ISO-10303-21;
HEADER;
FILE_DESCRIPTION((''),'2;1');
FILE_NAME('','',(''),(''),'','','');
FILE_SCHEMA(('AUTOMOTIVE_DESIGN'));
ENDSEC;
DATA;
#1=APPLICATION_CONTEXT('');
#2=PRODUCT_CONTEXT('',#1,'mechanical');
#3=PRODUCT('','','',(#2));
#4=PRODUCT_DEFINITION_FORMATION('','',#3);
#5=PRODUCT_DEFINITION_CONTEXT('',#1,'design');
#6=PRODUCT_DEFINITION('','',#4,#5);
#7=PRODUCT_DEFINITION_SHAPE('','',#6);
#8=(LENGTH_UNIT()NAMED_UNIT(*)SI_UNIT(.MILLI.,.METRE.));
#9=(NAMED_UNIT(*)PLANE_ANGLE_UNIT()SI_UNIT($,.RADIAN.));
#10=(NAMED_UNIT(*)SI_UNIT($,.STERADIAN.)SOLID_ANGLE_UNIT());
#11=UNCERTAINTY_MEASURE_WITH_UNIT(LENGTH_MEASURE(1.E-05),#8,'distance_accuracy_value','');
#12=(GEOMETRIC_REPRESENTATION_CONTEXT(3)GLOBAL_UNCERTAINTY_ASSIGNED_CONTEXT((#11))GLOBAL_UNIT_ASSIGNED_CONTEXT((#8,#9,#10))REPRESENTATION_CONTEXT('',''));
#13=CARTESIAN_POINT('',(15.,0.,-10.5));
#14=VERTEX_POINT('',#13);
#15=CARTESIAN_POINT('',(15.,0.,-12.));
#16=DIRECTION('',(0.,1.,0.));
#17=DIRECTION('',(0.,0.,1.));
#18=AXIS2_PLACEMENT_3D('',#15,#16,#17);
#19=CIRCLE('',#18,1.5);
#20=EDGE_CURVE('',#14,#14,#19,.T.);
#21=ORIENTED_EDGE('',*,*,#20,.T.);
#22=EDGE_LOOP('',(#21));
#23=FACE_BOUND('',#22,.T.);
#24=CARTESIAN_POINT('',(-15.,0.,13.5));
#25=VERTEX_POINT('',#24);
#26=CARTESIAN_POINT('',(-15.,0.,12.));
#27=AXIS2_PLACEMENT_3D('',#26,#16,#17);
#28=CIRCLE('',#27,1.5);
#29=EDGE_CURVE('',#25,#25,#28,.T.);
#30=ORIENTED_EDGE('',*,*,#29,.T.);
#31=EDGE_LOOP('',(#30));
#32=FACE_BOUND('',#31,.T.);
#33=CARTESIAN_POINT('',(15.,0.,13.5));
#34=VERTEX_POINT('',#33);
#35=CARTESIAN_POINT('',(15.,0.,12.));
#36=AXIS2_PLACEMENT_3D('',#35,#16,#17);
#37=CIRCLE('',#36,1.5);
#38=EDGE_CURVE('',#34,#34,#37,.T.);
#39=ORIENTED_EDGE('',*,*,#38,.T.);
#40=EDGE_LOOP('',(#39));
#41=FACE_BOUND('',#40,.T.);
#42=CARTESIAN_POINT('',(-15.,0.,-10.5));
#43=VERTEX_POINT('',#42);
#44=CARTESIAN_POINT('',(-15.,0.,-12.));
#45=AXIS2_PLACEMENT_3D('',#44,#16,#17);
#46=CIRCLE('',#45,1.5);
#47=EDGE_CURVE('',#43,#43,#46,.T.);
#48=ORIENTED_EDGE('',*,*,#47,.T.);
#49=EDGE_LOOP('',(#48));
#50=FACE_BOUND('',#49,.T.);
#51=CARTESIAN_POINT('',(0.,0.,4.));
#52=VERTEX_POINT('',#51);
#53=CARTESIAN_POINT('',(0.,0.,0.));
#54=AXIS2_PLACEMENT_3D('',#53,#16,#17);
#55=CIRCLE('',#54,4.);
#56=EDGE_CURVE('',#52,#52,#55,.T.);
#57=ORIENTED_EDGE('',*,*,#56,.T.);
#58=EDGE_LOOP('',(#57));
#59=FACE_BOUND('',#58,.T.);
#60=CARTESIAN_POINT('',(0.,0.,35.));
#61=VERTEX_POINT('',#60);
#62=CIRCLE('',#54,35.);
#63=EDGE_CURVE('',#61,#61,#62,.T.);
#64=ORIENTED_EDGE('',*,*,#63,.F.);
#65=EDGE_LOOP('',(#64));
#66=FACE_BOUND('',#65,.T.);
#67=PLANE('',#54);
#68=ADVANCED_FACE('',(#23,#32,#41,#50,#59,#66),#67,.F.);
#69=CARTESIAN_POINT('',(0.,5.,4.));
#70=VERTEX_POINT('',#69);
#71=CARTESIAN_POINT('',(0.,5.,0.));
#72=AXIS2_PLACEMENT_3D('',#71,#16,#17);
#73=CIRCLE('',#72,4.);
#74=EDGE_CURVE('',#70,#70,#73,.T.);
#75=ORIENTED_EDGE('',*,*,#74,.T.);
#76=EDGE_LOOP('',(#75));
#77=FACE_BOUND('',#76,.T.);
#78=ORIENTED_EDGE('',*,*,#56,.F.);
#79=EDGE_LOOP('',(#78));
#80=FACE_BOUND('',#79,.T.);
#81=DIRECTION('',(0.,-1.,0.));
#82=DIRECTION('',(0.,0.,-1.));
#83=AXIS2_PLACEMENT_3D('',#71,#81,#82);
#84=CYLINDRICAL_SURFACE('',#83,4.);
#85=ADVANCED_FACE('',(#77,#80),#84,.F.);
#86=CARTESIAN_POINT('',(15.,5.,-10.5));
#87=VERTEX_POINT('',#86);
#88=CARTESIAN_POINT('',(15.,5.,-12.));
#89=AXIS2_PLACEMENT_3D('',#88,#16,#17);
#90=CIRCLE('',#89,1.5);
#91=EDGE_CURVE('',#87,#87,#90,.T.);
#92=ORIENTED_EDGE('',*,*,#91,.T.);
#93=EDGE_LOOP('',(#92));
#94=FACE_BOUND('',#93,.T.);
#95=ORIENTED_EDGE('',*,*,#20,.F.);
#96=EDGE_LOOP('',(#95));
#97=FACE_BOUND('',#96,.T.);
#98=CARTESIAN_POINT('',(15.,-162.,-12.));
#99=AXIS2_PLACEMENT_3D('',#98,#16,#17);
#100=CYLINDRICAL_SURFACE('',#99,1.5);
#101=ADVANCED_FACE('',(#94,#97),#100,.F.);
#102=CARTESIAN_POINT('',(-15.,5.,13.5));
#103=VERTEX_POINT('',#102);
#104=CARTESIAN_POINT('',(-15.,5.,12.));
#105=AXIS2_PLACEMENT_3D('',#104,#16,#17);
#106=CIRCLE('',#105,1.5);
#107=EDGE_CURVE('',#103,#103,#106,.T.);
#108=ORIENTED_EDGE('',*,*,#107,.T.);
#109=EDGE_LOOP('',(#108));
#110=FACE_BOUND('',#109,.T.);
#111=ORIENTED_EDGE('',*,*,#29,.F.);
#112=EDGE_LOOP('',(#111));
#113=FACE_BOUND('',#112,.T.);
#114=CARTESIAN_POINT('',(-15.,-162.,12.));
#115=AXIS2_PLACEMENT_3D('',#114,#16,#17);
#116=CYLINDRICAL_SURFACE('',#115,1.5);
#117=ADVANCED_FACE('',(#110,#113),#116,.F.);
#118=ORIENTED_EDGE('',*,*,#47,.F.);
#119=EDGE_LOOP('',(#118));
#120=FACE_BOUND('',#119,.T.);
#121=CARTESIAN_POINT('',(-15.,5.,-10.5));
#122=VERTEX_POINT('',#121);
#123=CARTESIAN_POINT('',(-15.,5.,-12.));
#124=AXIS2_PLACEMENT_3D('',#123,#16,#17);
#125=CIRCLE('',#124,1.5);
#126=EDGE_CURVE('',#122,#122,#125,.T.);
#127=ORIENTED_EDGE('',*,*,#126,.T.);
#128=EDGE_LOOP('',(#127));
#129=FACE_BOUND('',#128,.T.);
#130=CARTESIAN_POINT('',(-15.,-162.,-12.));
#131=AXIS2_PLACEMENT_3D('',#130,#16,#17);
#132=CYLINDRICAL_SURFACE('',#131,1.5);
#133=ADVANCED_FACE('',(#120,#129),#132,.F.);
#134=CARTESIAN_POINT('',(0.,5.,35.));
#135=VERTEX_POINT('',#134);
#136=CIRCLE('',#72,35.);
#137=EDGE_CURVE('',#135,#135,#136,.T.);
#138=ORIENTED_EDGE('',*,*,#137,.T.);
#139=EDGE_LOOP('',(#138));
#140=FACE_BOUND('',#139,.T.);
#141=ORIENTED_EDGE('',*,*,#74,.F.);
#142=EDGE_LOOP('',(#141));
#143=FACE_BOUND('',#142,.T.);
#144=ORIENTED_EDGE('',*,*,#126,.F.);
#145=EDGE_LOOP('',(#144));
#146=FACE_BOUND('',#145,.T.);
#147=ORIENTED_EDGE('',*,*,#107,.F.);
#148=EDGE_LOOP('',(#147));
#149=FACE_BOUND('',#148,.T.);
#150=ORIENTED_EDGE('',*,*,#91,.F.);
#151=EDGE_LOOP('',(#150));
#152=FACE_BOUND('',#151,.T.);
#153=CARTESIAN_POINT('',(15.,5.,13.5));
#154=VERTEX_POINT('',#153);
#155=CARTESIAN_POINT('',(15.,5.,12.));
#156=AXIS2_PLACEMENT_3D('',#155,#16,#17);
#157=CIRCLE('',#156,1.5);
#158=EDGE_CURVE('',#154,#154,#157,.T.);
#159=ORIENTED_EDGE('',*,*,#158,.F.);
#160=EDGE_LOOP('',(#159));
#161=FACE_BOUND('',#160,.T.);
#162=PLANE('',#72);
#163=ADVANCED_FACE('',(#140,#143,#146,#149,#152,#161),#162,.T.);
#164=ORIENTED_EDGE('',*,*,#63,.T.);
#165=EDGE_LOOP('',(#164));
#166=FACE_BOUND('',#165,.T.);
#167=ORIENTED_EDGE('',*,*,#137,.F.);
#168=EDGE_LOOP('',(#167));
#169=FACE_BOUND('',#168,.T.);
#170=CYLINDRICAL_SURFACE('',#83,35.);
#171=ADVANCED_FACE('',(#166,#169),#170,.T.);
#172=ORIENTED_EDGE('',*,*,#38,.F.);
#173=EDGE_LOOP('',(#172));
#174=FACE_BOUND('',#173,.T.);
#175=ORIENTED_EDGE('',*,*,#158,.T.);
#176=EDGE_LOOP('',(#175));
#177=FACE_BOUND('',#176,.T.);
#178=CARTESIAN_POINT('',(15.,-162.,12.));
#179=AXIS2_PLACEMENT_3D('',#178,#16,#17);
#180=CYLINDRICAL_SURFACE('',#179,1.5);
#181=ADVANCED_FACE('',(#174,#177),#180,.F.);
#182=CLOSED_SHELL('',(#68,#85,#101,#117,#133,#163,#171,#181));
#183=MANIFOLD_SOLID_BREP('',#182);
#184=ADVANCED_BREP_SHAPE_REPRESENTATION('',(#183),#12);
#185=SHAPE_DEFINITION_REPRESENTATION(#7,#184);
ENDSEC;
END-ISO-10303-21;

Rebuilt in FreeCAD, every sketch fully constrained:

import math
import FreeCAD as App
import Part
import Sketcher
Q = App.Units.Quantity

doc = App.newDocument("Part")
params = doc.addObject("Spreadsheet::Sheet", "Params")
for row, (alias, value) in enumerate([
    ("sketch1_diameter", "70 mm"),
    ("sketch1_diameter2", "8 mm"),
    ("pad1_length", "5 mm"),
    ("sketch2_radius", "1.5 mm"),
    ("pocket1_length", "167 mm"),
], start=1):
    params.set(f"A{row}", alias)
    params.set(f"B{row}", "=" + value)
    params.setAlias(f"B{row}", alias)

body = doc.addObject("PartDesign::Body", "Body")

sketch1 = body.newObject("Sketcher::SketchObject", "Sketch")
sketch1.AttachmentSupport = (doc.getObject("XZ_Plane"), [""])
sketch1.MapMode = "FlatFace"
sketch1.addGeometry([
    Part.Circle(App.Vector(0, 0, 0), App.Vector(0, 0, 1), 35),
    Part.Circle(App.Vector(0, 0, 0), App.Vector(0, 0, 1), 4),
], False)
sketch1.addConstraint([
    Sketcher.Constraint("Coincident", 0, 3, -1, 1),
    Sketcher.Constraint("Coincident", 1, 3, -1, 1),
    Sketcher.Constraint("Diameter", 0, Q("70 mm")),
    Sketcher.Constraint("Diameter", 1, Q("8 mm")),
])
sketch1.setExpression("Constraints[2]", "Params.sketch1_diameter")
sketch1.setExpression("Constraints[3]", "Params.sketch1_diameter2")
pad1 = body.newObject("PartDesign::Pad", "Pad")
pad1.Profile = sketch1
pad1.setExpression("Length", "Params.pad1_length")
pad1.Reversed = True

sketch2 = body.newObject("Sketcher::SketchObject", "Sketch001")
sketch2.AttachmentSupport = (doc.getObject("XZ_Plane"), [""])
sketch2.MapMode = "FlatFace"
sketch2.AttachmentOffset = App.Placement(App.Vector(0, 0, -5), App.Rotation())
sketch2.addGeometry([
    Part.ArcOfCircle(Part.Circle(App.Vector(-15, 12, 0), App.Vector(0, 0, 1), 1.5), math.radians(0), math.radians(270)),
    Part.ArcOfCircle(Part.Circle(App.Vector(-15, 12, 0), App.Vector(0, 0, 1), 1.5), math.radians(-39), math.radians(0)),
    Part.ArcOfCircle(Part.Circle(App.Vector(-15, 12, 0), App.Vector(0, 0, 1), 1.5), math.radians(-90), math.radians(-39)),
    Part.ArcOfCircle(Part.Circle(App.Vector(-15, -12, 0), App.Vector(0, 0, 1), 1.5), math.radians(0), math.radians(39)),
    Part.ArcOfCircle(Part.Circle(App.Vector(-15, -12, 0), App.Vector(0, 0, 1), 1.5), math.radians(90), math.radians(360)),
    Part.ArcOfCircle(Part.Circle(App.Vector(-15, -12, 0), App.Vector(0, 0, 1), 1.5), math.radians(39), math.radians(90)),
    Part.ArcOfCircle(Part.Circle(App.Vector(15, -12, 0), App.Vector(0, 0, 1), 1.5), math.radians(180), math.radians(360)),
    Part.ArcOfCircle(Part.Circle(App.Vector(15, -12, 0), App.Vector(0, 0, 1), 1.5), math.radians(141), math.radians(180)),
    Part.ArcOfCircle(Part.Circle(App.Vector(15, -12, 0), App.Vector(0, 0, 1), 1.5), math.radians(90), math.radians(141)),
    Part.ArcOfCircle(Part.Circle(App.Vector(15, -12, 0), App.Vector(0, 0, 1), 1.5), math.radians(0), math.radians(90)),
    Part.ArcOfCircle(Part.Circle(App.Vector(15, 12, 0), App.Vector(0, 0, 1), 1.5), math.radians(180), math.radians(219)),
    Part.ArcOfCircle(Part.Circle(App.Vector(15, 12, 0), App.Vector(0, 0, 1), 1.5), math.radians(0), math.radians(180)),
    Part.ArcOfCircle(Part.Circle(App.Vector(15, 12, 0), App.Vector(0, 0, 1), 1.5), math.radians(-90), math.radians(0)),
    Part.ArcOfCircle(Part.Circle(App.Vector(15, 12, 0), App.Vector(0, 0, 1), 1.5), math.radians(-141), math.radians(-90)),
], False)
sketch2.addConstraint([
    Sketcher.Constraint("Tangent", 0, 1, 1, 2),
    Sketcher.Constraint("Tangent", 1, 1, 2, 2),
    Sketcher.Constraint("Tangent", 2, 1, 0, 2),
    Sketcher.Constraint("Tangent", 3, 1, 4, 2),
    Sketcher.Constraint("Tangent", 4, 1, 5, 2),
    Sketcher.Constraint("Tangent", 5, 1, 3, 2),
    Sketcher.Constraint("Tangent", 6, 1, 7, 2),
    Sketcher.Constraint("Tangent", 7, 1, 8, 2),
    Sketcher.Constraint("Tangent", 8, 1, 9, 2),
    Sketcher.Constraint("Tangent", 9, 1, 6, 2),
    Sketcher.Constraint("Tangent", 10, 1, 11, 2),
    Sketcher.Constraint("Tangent", 11, 1, 12, 2),
    Sketcher.Constraint("Tangent", 12, 1, 13, 2),
    Sketcher.Constraint("Tangent", 13, 1, 10, 2),
    Sketcher.Constraint("Equal", 2, 3),
    Sketcher.Constraint("Equal", 5, 6),
    Sketcher.Constraint("Equal", 6, 7),
    Sketcher.Constraint("Equal", 9, 10),
    Sketcher.Constraint("Equal", 10, 11),
    Sketcher.Constraint("Symmetric", 0, 3, 6, 3, -1, 1),
    Sketcher.Constraint("Symmetric", 3, 3, 10, 3, -1, 1),
    Sketcher.Constraint("Symmetric", 3, 3, 6, 3, -2),
    Sketcher.Constraint("Horizontal", 13, 3, 0, 1),
    Sketcher.Constraint("Horizontal", 9, 3, 3, 1),
    Sketcher.Constraint("Horizontal", 3, 1, 6, 1),
    Sketcher.Constraint("Horizontal", 5, 1, 7, 1),
    Sketcher.Constraint("Horizontal", 6, 1, 9, 1),
    Sketcher.Constraint("Horizontal", 0, 1, 10, 1),
    Sketcher.Constraint("Horizontal", 10, 1, 11, 1),
    Sketcher.Constraint("Horizontal", 1, 1, 13, 1),
    Sketcher.Constraint("Vertical", 5, 3, 2, 1),
    Sketcher.Constraint("Vertical", 2, 1, 4, 1),
    Sketcher.Constraint("Vertical", 1, 1, 5, 1),
    Sketcher.Constraint("Vertical", 13, 3, 8, 1),
    Sketcher.Constraint("Vertical", 8, 1, 12, 1),
    Sketcher.Constraint("Radius", 0, Q("1.5 mm")),
    Sketcher.Constraint("DistanceX", 0, 3, -1, 1, Q("15 mm")),
    Sketcher.Constraint("DistanceY", -1, 1, 0, 3, Q("12 mm")),
    Sketcher.Constraint("DistanceX", 1, 1, -1, 1, Q("13.828697 mm")),
])
sketch2.setExpression("Constraints[35]", "Params.sketch2_radius")
pocket1 = body.newObject("PartDesign::Pocket", "Pocket")
pocket1.Profile = sketch2
pocket1.setExpression("Length", "Params.pocket1_length")
pocket1.Reversed = True

doc.recompute()
